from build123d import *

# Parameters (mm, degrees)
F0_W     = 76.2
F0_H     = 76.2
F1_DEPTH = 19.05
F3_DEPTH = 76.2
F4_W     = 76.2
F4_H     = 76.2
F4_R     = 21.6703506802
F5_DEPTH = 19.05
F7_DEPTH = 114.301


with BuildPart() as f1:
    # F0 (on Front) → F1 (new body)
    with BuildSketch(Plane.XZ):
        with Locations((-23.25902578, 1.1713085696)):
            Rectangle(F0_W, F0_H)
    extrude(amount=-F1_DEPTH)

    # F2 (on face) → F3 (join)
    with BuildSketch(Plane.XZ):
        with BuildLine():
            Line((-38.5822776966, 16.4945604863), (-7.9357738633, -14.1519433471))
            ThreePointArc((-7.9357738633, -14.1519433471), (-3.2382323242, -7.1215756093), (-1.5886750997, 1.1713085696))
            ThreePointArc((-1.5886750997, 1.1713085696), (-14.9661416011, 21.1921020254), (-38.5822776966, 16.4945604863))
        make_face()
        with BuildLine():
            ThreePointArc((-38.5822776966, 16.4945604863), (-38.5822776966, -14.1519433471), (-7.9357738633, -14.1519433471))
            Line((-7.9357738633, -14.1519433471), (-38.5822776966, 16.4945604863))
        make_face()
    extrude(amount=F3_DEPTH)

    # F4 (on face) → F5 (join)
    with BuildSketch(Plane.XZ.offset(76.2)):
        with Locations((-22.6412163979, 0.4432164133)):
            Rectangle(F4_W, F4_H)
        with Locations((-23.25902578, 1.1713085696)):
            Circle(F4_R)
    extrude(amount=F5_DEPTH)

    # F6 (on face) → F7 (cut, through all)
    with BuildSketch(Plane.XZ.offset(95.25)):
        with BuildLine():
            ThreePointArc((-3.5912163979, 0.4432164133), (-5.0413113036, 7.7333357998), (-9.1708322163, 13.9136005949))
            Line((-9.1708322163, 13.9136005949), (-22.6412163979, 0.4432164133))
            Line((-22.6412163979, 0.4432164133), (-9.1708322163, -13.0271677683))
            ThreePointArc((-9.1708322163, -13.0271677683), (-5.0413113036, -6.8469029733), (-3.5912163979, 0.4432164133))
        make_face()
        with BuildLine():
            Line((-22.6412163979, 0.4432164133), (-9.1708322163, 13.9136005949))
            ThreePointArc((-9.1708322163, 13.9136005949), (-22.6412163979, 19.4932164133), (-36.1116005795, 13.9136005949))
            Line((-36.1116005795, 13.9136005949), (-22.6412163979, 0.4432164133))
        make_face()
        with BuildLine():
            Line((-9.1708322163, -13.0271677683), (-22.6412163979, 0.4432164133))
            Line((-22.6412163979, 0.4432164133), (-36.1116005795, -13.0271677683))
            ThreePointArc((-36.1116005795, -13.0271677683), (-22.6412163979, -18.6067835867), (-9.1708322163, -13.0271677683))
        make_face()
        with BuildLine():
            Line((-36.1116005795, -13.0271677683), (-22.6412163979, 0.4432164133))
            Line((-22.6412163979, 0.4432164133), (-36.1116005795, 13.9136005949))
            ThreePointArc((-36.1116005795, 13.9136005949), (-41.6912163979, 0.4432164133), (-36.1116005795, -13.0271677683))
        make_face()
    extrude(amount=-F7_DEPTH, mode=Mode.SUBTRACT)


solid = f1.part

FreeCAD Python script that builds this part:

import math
import FreeCAD as App
import Part
import Sketcher
Q = App.Units.Quantity

doc = App.newDocument("Part")
body = doc.addObject("PartDesign::Body", "Body")

sketch1 = doc.addObject("Sketcher::SketchObject", "Sketch")
body.addObject(sketch1)
sketch1.AttachmentSupport = (doc.XZ_Plane, [""])
sketch1.MapMode = "FlatFace"
sketch1.addGeometry([
    Part.LineSegment(App.Vector(-61, 39, 0), App.Vector(-61, -37, 0)),
    Part.LineSegment(App.Vector(-61, -37, 0), App.Vector(15, -37, 0)),
    Part.LineSegment(App.Vector(15, -37, 0), App.Vector(15, 39, 0)),
    Part.LineSegment(App.Vector(15, 39, 0), App.Vector(-61, 39, 0)),
], False)
sketch1.addConstraint([
    Sketcher.Constraint("Coincident", 0, 2, 1, 1),
    Sketcher.Constraint("Coincident", 1, 2, 2, 1),
    Sketcher.Constraint("Coincident", 2, 2, 3, 1),
    Sketcher.Constraint("Coincident", 3, 2, 0, 1),
    Sketcher.Constraint("Vertical", 0),
    Sketcher.Constraint("Horizontal", 1),
    Sketcher.Constraint("Vertical", 2),
    Sketcher.Constraint("Horizontal", 3),
    Sketcher.Constraint("Equal", 3, 0),
    Sketcher.Constraint("DistanceX", 1, 1, 1, 2, Q("3 in")),
    Sketcher.Constraint("DistanceY", 0, 2, -1, 1, 36.928691),
    Sketcher.Constraint("DistanceX", 0, 2, -1, 1, 61.359026),
])
pad1 = doc.addObject("PartDesign::Pad", "Pad")
body.addObject(pad1)
pad1.Profile = sketch1
pad1.Length = Q("0.75 in")
pad1.Reversed = True

sketch2 = doc.addObject("Sketcher::SketchObject", "Sketch001")
body.addObject(sketch2)
sketch2.AttachmentSupport = (doc.XZ_Plane, [""])
sketch2.MapMode = "FlatFace"
sketch2.addGeometry([
    Part.ArcOfCircle(Part.Circle(App.Vector(-23, 1, 0), App.Vector(0, 0, 1), 22), math.radians(-45), math.radians(0)),
    Part.ArcOfCircle(Part.Circle(App.Vector(-23, 1, 0), App.Vector(0, 0, 1), 22), math.radians(0), math.radians(315)),
], False)
sketch2.addConstraint([
    Sketcher.Constraint("Tangent", 0, 1, 1, 2),
    Sketcher.Constraint("Coincident", 1, 1, 0, 2),
    Sketcher.Constraint("Horizontal", 0, 3, 1, 1),
    Sketcher.Constraint("Radius", 0, 21.670351),
    Sketcher.Constraint("DistanceX", 0, 1, 1, 1, 6.347099),
    Sketcher.Constraint("DistanceY", -1, 1, 0, 3, 1.171309),
    Sketcher.Constraint("DistanceX", 0, 3, -1, 1, 23.259026),
])
pad2 = doc.addObject("PartDesign::Pad", "Pad001")
body.addObject(pad2)
pad2.Profile = sketch2
pad2.Length = Q("3 in")

sketch3 = doc.addObject("Sketcher::SketchObject", "Sketch002")
body.addObject(sketch3)
sketch3.AttachmentSupport = (doc.XZ_Plane, [""])
sketch3.MapMode = "FlatFace"
sketch3.AttachmentOffset = App.Placement(App.Vector(0, 0, 3 * 25.4), App.Rotation())
sketch3.addGeometry([
    Part.LineSegment(App.Vector(-61, 39, 0), App.Vector(-61, -38, 0)),
    Part.LineSegment(App.Vector(-61, -38, 0), App.Vector(15, -38, 0)),
    Part.LineSegment(App.Vector(15, -38, 0), App.Vector(15, 39, 0)),
    Part.LineSegment(App.Vector(15, 39, 0), App.Vector(-61, 39, 0)),
], False)
sketch3.addConstraint([
    Sketcher.Constraint("Coincident", 0, 2, 1, 1),
    Sketcher.Constraint("Coincident", 1, 2, 2, 1),
    Sketcher.Constraint("Coincident", 2, 2, 3, 1),
    Sketcher.Constraint("Coincident", 3, 2, 0, 1),
    Sketcher.Constraint("Vertical", 0),
    Sketcher.Constraint("Horizontal", 1),
    Sketcher.Constraint("Vertical", 2),
    Sketcher.Constraint("Horizontal", 3),
    Sketcher.Constraint("Equal", 3, 0),
    Sketcher.Constraint("DistanceX", 1, 1, 1, 2, Q("3 in")),
    Sketcher.Constraint("DistanceX", 0, 2, -1, 1, 60.741216),
    Sketcher.Constraint("DistanceY", 0, 2, -1, 1, 37.656784),
])
pad3 = doc.addObject("PartDesign::Pad", "Pad002")
body.addObject(pad3)
pad3.Profile = sketch3
pad3.Length = Q("0.75 in")

sketch4 = doc.addObject("Sketcher::SketchObject", "Sketch003")
body.addObject(sketch4)
sketch4.AttachmentSupport = (doc.XZ_Plane, [""])
sketch4.MapMode = "FlatFace"
sketch4.AttachmentOffset = App.Placement(App.Vector(0, 0, 3.75 * 25.4), App.Rotation())
sketch4.addGeometry([
    Part.ArcOfCircle(Part.Circle(App.Vector(-23, 0, 0), App.Vector(0, 0, 1), 19), math.radians(0), math.radians(45)),
    Part.ArcOfCircle(Part.Circle(App.Vector(-23, 0, 0), App.Vector(0, 0, 1), 19), math.radians(45), math.radians(135)),
    Part.ArcOfCircle(Part.Circle(App.Vector(-23, 0, 0), App.Vector(0, 0, 1), 19), math.radians(135), math.radians(225)),
    Part.ArcOfCircle(Part.Circle(App.Vector(-23, 0, 0), App.Vector(0, 0, 1), 19), math.radians(-135), math.radians(-45)),
    Part.ArcOfCircle(Part.Circle(App.Vector(-23, 0, 0), App.Vector(0, 0, 1), 19), math.radians(-45), math.radians(0)),
], False)
sketch4.addConstraint([
    Sketcher.Constraint("Tangent", 0, 2, 1, 1),
    Sketcher.Constraint("Tangent", 1, 2, 2, 1),
    Sketcher.Constraint("Tangent", 2, 2, 3, 1),
    Sketcher.Constraint("Tangent", 3, 2, 4, 1),
    Sketcher.Constraint("Tangent", 4, 2, 0, 1),
    Sketcher.Constraint("Coincident", 2, 3, 0, 3),
    Sketcher.Constraint("Horizontal", 0, 2, 1, 2),
    Sketcher.Constraint("Horizontal", 2, 2, 3, 2),
    Sketcher.Constraint("Horizontal", 3, 3, 4, 2),
    Sketcher.Constraint("Vertical", 1, 2, 2, 2),
    Sketcher.Constraint("Radius", 0, Q("0.75 in")),
    Sketcher.Constraint("DistanceY", -1, 1, 0, 2, 13.913601),
    Sketcher.Constraint("DistanceX", 1, 2, -1, 1, 36.111601),
    Sketcher.Constraint("DistanceX", 0, 3, -1, 1, 22.641216),
])
pocket1 = doc.addObject("PartDesign::Pocket", "Pocket")
body.addObject(pocket1)
pocket1.Profile = sketch4
pocket1.Type = "ThroughAll"

doc.recompute()
